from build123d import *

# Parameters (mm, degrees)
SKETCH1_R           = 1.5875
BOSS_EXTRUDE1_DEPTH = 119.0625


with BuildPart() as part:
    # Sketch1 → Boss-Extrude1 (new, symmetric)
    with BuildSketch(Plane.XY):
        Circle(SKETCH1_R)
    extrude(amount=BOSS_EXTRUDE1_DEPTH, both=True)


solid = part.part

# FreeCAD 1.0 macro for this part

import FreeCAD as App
import Part
import Sketcher
from FreeCAD import Vector
Q = App.Units.Quantity

doc = App.newDocument("Part")
body = doc.addObject("PartDesign::Body", "Body")

# Sketch on XY plane
sketch1 = doc.addObject("Sketcher::SketchObject", "Sketch")
body.addObject(sketch1)
sketch1.AttachmentSupport = (doc.XY_Plane, [""])
sketch1.MapMode = "FlatFace"
sketch1.addGeometry(Part.Circle(Vector(0, 0, 0), Vector(0, 0, 1), 1.5875), False)
sketch1.addConstraint([
    Sketcher.Constraint("Coincident", 0, 3, -1, 1),
    Sketcher.Constraint("Diameter", 0, Q("0.125 in")),
])
pad1 = doc.addObject("PartDesign::Pad", "Pad")
body.addObject(pad1)
pad1.Profile = sketch1
pad1.Length = Q("9.375 in")
pad1.Midplane = True

doc.recompute()
